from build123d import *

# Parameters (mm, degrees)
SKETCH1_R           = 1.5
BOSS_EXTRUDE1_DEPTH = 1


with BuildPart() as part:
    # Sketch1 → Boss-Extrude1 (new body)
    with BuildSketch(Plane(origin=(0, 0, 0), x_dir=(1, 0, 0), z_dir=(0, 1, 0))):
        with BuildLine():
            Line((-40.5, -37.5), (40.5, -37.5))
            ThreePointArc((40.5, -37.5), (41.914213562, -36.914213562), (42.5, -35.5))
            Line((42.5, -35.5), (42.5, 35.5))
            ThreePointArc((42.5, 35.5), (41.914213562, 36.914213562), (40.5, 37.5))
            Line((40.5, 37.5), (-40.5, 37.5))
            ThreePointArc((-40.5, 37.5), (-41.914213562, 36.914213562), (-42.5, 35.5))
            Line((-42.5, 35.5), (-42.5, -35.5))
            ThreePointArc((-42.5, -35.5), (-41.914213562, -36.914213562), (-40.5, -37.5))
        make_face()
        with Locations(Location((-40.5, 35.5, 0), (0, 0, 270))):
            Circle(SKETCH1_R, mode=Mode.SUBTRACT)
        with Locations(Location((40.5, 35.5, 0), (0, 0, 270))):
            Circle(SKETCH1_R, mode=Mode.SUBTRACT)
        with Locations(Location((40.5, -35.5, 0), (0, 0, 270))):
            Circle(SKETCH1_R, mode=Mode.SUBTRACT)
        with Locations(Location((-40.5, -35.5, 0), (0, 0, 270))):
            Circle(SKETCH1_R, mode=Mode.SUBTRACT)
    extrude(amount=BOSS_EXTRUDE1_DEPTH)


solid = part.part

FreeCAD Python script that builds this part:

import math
import FreeCAD as App
import Part
import Sketcher
from FreeCAD import Vector

doc = App.newDocument("Part")
params = doc.addObject("Spreadsheet::Sheet", "Params")
for row, (alias, value) in enumerate([
    ("sketch1_diameter", "3 mm"),
    ("sketch1_radius", "2 mm"),
    ("sketch1_width", "81 mm"),
    ("sketch1_height", "71 mm"),
    ("pad1_length", "1 mm"),
], start=1):
    params.set(f"A{row}", alias)
    params.set(f"B{row}", "=" + value)
    params.setAlias(f"B{row}", alias)

body = doc.addObject("PartDesign::Body", "Body")

# Sketch on XZ plane
sketch1 = doc.addObject("Sketcher::SketchObject", "Sketch")
body.addObject(sketch1)
sketch1.AttachmentSupport = (doc.XZ_Plane, [""])
sketch1.MapMode = "FlatFace"
sketch1.addGeometry([
    Part.LineSegment(Vector(-40.5, 37.5, 0), Vector(40.5, 37.5, 0)),  # 0
    Part.ArcOfCircle(Part.Circle(Vector(40.5, 35.5, 0), Vector(0, 0, 1), 2), math.radians(0), math.radians(90)),  # 1
    Part.LineSegment(Vector(42.5, 35.5, 0), Vector(42.5, -35.5, 0)),  # 2
    Part.ArcOfCircle(Part.Circle(Vector(40.5, -35.5, 0), Vector(0, 0, 1), 2), math.radians(-90), math.radians(0)),  # 3
    Part.LineSegment(Vector(40.5, -37.5, 0), Vector(-40.5, -37.5, 0)),  # 4
    Part.ArcOfCircle(Part.Circle(Vector(-40.5, -35.5, 0), Vector(0, 0, 1), 2), math.radians(-180), math.radians(-90)),  # 5
    Part.LineSegment(Vector(-42.5, -35.5, 0), Vector(-42.5, 35.5, 0)),  # 6
    Part.ArcOfCircle(Part.Circle(Vector(-40.5, 35.5, 0), Vector(0, 0, 1), 2), math.radians(90), math.radians(180)),  # 7
    Part.Circle(Vector(-40.5, 35.5, 0), Vector(0, 0, 1), 1.5),  # 8
    Part.Circle(Vector(40.5, 35.5, 0), Vector(0, 0, 1), 1.5),  # 9
    Part.Circle(Vector(-40.5, -35.5, 0), Vector(0, 0, 1), 1.5),  # 10
    Part.Circle(Vector(40.5, -35.5, 0), Vector(0, 0, 1), 1.5),  # 11
], False)
sketch1.addConstraint([
    Sketcher.Constraint("Tangent", 0, 2, 1, 2),
    Sketcher.Constraint("Tangent", 1, 1, 2, 1),
    Sketcher.Constraint("Tangent", 2, 2, 3, 2),
    Sketcher.Constraint("Tangent", 3, 1, 4, 1),
    Sketcher.Constraint("Tangent", 4, 2, 5, 2),
    Sketcher.Constraint("Tangent", 5, 1, 6, 1),
    Sketcher.Constraint("Tangent", 6, 2, 7, 2),
    Sketcher.Constraint("Tangent", 7, 1, 0, 1),
    Sketcher.Constraint("Horizontal", 0),
    Sketcher.Constraint("Vertical", 2),
    Sketcher.Constraint("Horizontal", 4),
    Sketcher.Constraint("Vertical", 6),
    Sketcher.Constraint("Coincident", 8, 3, 7, 3),
    Sketcher.Constraint("Coincident", 9, 3, 1, 3),
    Sketcher.Constraint("Coincident", 10, 3, 5, 3),
    Sketcher.Constraint("Coincident", 11, 3, 3, 3),
    Sketcher.Constraint("Equal", 1, 3),
    Sketcher.Constraint("Equal", 3, 5),
    Sketcher.Constraint("Equal", 5, 7),
    Sketcher.Constraint("Equal", 8, 9),
    Sketcher.Constraint("Equal", 9, 10),
    Sketcher.Constraint("Equal", 10, 11),
    Sketcher.Constraint("Symmetric", 1, 3, 5, 3, -1, 1),
    Sketcher.Constraint("Diameter", 8, 3.0),
    Sketcher.Constraint("Radius", 1, 2.0),
    Sketcher.Constraint("DistanceX", 0, 1, 0, 2, 81.0),
    Sketcher.Constraint("DistanceY", 2, 2, 2, 1, 71.0),
])
sketch1.setExpression("Constraints[23]", "Params.sketch1_diameter")
sketch1.setExpression("Constraints[24]", "Params.sketch1_radius")
sketch1.setExpression("Constraints[25]", "Params.sketch1_width")
sketch1.setExpression("Constraints[26]", "Params.sketch1_height")
pad1 = doc.addObject("PartDesign::Pad", "Pad")
body.addObject(pad1)
pad1.Profile = sketch1
pad1.setExpression("Length", "Params.pad1_length")
pad1.Reversed = True

doc.recompute()
